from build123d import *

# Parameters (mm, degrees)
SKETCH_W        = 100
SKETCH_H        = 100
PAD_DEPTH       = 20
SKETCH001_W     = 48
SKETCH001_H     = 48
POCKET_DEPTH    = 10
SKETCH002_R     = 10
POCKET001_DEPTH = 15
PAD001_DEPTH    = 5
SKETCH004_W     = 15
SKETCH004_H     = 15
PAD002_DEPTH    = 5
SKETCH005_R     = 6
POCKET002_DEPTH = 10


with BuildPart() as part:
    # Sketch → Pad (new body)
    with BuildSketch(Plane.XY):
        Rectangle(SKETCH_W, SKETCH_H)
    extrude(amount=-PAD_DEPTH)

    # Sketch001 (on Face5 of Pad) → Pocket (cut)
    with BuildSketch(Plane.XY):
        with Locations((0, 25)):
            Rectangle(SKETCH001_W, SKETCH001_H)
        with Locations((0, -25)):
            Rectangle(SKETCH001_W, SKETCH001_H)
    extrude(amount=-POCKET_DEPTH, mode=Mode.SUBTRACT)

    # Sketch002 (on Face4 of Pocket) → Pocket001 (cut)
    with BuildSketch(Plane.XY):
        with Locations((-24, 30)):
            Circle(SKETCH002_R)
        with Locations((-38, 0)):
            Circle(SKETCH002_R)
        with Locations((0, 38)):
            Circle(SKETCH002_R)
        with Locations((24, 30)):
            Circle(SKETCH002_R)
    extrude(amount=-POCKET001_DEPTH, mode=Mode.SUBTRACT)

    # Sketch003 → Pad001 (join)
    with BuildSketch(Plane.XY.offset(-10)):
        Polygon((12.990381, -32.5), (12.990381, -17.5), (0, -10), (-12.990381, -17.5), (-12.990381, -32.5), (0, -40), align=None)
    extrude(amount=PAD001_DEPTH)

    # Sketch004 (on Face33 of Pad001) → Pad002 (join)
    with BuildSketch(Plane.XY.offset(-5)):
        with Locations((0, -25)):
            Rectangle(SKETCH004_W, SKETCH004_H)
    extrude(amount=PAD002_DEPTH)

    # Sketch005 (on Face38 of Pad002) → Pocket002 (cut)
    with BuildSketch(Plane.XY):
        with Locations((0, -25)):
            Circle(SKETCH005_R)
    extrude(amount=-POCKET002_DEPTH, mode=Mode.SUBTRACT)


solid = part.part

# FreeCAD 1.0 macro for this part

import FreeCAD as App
import Part
import Sketcher
Q = App.Units.Quantity


def add_polygon(sketch, points):
    """Adds a closed chain of lines whose ends are joined by coincident constraints."""
    first, n = sketch.GeometryCount, len(points)
    for a, b in zip(points, points[1:] + points[:1]):
        sketch.addGeometry(Part.LineSegment(App.Vector(*a, 0), App.Vector(*b, 0)), False)
    for i in range(n):
        sketch.addConstraint(Sketcher.Constraint("Coincident", first + i, 2, first + (i + 1) % n, 1))

doc = App.newDocument("Part")
params = doc.addObject("Spreadsheet::Sheet", "Params")
for row, (alias, value) in enumerate([
    ("sketch1_width", "100 mm"),
    ("pad1_length", "20 mm"),
    ("sketch2_width", "48 mm"),
    ("pocket1_length", "10 mm"),
    ("sketch3_diameter", "20 mm"),
    ("pocket2_length", "15 mm"),
    ("sketch4_height", "15 mm"),
    ("sketch4_length", "15 mm"),
    ("pad2_length", "5 mm"),
    ("sketch5_width", "15 mm"),
    ("pad3_length", "5 mm"),
    ("sketch6_diameter", "12 mm"),
    ("pocket3_length", "10 mm"),
], start=1):
    params.set(f"A{row}", alias)
    params.set(f"B{row}", "=" + value)
    params.setAlias(f"B{row}", alias)

body = doc.addObject("PartDesign::Body", "Body")

# Sketch on XY plane
sketch1 = body.newObject("Sketcher::SketchObject", "Sketch")
sketch1.AttachmentSupport = (doc.getObject("XY_Plane"), [""])
sketch1.MapMode = "FlatFace"
add_polygon(sketch1, [(-50, 50), (-50, -50), (50, -50), (50, 50)])  # lines 0-3
sketch1.addConstraint([
    Sketcher.Constraint("Vertical", 0),
    Sketcher.Constraint("Horizontal", 1),
    Sketcher.Constraint("Vertical", 2),
    Sketcher.Constraint("Horizontal", 3),
    Sketcher.Constraint("Symmetric", 0, 2, 2, 2, -1, 1),
    Sketcher.Constraint("Equal", 3, 0),
    Sketcher.Constraint("DistanceX", 1, 1, 1, 2, 100.0),
])
sketch1.setExpression("Constraints[10]", "Params.sketch1_width")
pad1 = body.newObject("PartDesign::Pad", "Pad")
pad1.Profile = sketch1
pad1.setExpression("Length", "Params.pad1_length")
pad1.Reversed = True

# Sketch on XY plane
sketch2 = body.newObject("Sketcher::SketchObject", "Sketch001")
sketch2.AttachmentSupport = (doc.getObject("XY_Plane"), [""])
sketch2.MapMode = "FlatFace"
add_polygon(sketch2, [(-24, 49), (-24, 1), (24, 1), (24, 49)])  # lines 0-3
add_polygon(sketch2, [(-24, -1), (-24, -49), (24, -49), (24, -1)])  # lines 4-7
sketch2.addConstraint([
    Sketcher.Constraint("Vertical", 0),
    Sketcher.Constraint("Horizontal", 1),
    Sketcher.Constraint("Vertical", 2),
    Sketcher.Constraint("Horizontal", 3),
    Sketcher.Constraint("Vertical", 4),
    Sketcher.Constraint("Horizontal", 5),
    Sketcher.Constraint("Vertical", 6),
    Sketcher.Constraint("Horizontal", 7),
    Sketcher.Constraint("Symmetric", 2, 2, 4, 2, -1, 1),
    Sketcher.Constraint("Symmetric", 0, 2, 6, 2, -1, 1),
    Sketcher.Constraint("Vertical", 3, 2, 4, 2),
    Sketcher.Constraint("Equal", 7, 0),
    Sketcher.Constraint("DistanceX", 1, 1, 1, 2, 48.0),
    Sketcher.Constraint("DistanceY", -1, 1, 0, 2, 1.0),
])
sketch2.setExpression("Constraints[20]", "Params.sketch2_width")
pocket1 = body.newObject("PartDesign::Pocket", "Pocket")
pocket1.Profile = sketch2
pocket1.setExpression("Length", "Params.pocket1_length")

# Sketch on XY plane
sketch3 = body.newObject("Sketcher::SketchObject", "Sketch002")
sketch3.AttachmentSupport = (doc.getObject("XY_Plane"), [""])
sketch3.MapMode = "FlatFace"
sketch3.addGeometry([
    Part.Circle(App.Vector(-24, 30, 0), App.Vector(0, 0, 1), 10),
    Part.Circle(App.Vector(-38, 0, 0), App.Vector(0, 0, 1), 10),
    Part.Circle(App.Vector(0, 38, 0), App.Vector(0, 0, 1), 10),
    Part.Circle(App.Vector(24, 30, 0), App.Vector(0, 0, 1), 10),
], False)
sketch3.addConstraint([
    Sketcher.Constraint("Equal", 0, 1),
    Sketcher.Constraint("Equal", 1, 2),
    Sketcher.Constraint("Equal", 2, 3),
    Sketcher.Constraint("Symmetric", 0, 3, 3, 3, -2),
    Sketcher.Constraint("PointOnObject", 1, 3, -1),
    Sketcher.Constraint("PointOnObject", 2, 3, -2),
    Sketcher.Constraint("Diameter", 0, 20.0),
    Sketcher.Constraint("DistanceX", 0, 3, -1, 1, 24.0),
    Sketcher.Constraint("DistanceY", -1, 1, 0, 3, 30.0),
    Sketcher.Constraint("DistanceX", 1, 3, -1, 1, 38.0),
    Sketcher.Constraint("DistanceY", -1, 1, 2, 3, 38.0),
])
sketch3.setExpression("Constraints[6]", "Params.sketch3_diameter")
pocket2 = body.newObject("PartDesign::Pocket", "Pocket001")
pocket2.Profile = sketch3
pocket2.setExpression("Length", "Params.pocket2_length")

# Sketch on XY plane
sketch4 = body.newObject("Sketcher::SketchObject", "Sketch003")
sketch4.AttachmentSupport = (doc.getObject("XY_Plane"), [""])
sketch4.MapMode = "FlatFace"
sketch4.AttachmentOffset = App.Placement(App.Vector(0, 0, -10), App.Rotation())
add_polygon(sketch4, [(13, -32), (13, -18), (0, -10), (-13, -18), (-13, -32), (0, -40)])  # lines 0-5
sketch4.addConstraint([
    Sketcher.Constraint("Vertical", 0),
    Sketcher.Constraint("Vertical", 3),
    Sketcher.Constraint("Symmetric", 0, 2, 2, 2, -2),
    Sketcher.Constraint("PointOnObject", 1, 2, -2),
    Sketcher.Constraint("PointOnObject", 4, 2, -2),
    Sketcher.Constraint("Parallel", 1, 4),
    Sketcher.Constraint("Parallel", 2, 5),
    Sketcher.Constraint("DistanceY", 0, 1, 0, 2, 15.0),
    Sketcher.Constraint("Angle", 1, Q("150 deg")),
    Sketcher.Constraint("Distance", 1, 15.0),
    Sketcher.Constraint("DistanceY", 1, 2, -1, 1, 10.0),
])
sketch4.setExpression("Constraints[13]", "Params.sketch4_height")
sketch4.setExpression("Constraints[15]", "Params.sketch4_length")
pad2 = body.newObject("PartDesign::Pad", "Pad001")
pad2.Profile = sketch4
pad2.setExpression("Length", "Params.pad2_length")

# Sketch on XY plane
sketch5 = body.newObject("Sketcher::SketchObject", "Sketch004")
sketch5.AttachmentSupport = (doc.getObject("XY_Plane"), [""])
sketch5.MapMode = "FlatFace"
sketch5.AttachmentOffset = App.Placement(App.Vector(0, 0, -5), App.Rotation())
add_polygon(sketch5, [(-8, -18), (-8, -32), (8, -32), (8, -18)])  # lines 0-3
sketch5.addConstraint([
    Sketcher.Constraint("Vertical", 0),
    Sketcher.Constraint("Horizontal", 1),
    Sketcher.Constraint("Vertical", 2),
    Sketcher.Constraint("Horizontal", 3),
    Sketcher.Constraint("Equal", 3, 0),
    Sketcher.Constraint("DistanceX", 1, 1, 1, 2, 15.0),
    Sketcher.Constraint("DistanceX", 0, 2, -1, 1, 7.5),
    Sketcher.Constraint("DistanceY", 0, 2, -1, 1, 32.5),
])
sketch5.setExpression("Constraints[9]", "Params.sketch5_width")
pad3 = body.newObject("PartDesign::Pad", "Pad002")
pad3.Profile = sketch5
pad3.setExpression("Length", "Params.pad3_length")

# Sketch on XY plane
sketch6 = body.newObject("Sketcher::SketchObject", "Sketch005")
sketch6.AttachmentSupport = (doc.getObject("XY_Plane"), [""])
sketch6.MapMode = "FlatFace"
sketch6.addGeometry(Part.Circle(App.Vector(0, -25, 0), App.Vector(0, 0, 1), 6), False)
sketch6.addConstraint([
    Sketcher.Constraint("PointOnObject", 0, 3, -2),
    Sketcher.Constraint("Diameter", 0, 12.0),
    Sketcher.Constraint("DistanceY", 0, 3, -1, 1, 25.0),
])
sketch6.setExpression("Constraints[1]", "Params.sketch6_diameter")
pocket3 = body.newObject("PartDesign::Pocket", "Pocket002")
pocket3.Profile = sketch6
pocket3.setExpression("Length", "Params.pocket3_length")

doc.recompute()
